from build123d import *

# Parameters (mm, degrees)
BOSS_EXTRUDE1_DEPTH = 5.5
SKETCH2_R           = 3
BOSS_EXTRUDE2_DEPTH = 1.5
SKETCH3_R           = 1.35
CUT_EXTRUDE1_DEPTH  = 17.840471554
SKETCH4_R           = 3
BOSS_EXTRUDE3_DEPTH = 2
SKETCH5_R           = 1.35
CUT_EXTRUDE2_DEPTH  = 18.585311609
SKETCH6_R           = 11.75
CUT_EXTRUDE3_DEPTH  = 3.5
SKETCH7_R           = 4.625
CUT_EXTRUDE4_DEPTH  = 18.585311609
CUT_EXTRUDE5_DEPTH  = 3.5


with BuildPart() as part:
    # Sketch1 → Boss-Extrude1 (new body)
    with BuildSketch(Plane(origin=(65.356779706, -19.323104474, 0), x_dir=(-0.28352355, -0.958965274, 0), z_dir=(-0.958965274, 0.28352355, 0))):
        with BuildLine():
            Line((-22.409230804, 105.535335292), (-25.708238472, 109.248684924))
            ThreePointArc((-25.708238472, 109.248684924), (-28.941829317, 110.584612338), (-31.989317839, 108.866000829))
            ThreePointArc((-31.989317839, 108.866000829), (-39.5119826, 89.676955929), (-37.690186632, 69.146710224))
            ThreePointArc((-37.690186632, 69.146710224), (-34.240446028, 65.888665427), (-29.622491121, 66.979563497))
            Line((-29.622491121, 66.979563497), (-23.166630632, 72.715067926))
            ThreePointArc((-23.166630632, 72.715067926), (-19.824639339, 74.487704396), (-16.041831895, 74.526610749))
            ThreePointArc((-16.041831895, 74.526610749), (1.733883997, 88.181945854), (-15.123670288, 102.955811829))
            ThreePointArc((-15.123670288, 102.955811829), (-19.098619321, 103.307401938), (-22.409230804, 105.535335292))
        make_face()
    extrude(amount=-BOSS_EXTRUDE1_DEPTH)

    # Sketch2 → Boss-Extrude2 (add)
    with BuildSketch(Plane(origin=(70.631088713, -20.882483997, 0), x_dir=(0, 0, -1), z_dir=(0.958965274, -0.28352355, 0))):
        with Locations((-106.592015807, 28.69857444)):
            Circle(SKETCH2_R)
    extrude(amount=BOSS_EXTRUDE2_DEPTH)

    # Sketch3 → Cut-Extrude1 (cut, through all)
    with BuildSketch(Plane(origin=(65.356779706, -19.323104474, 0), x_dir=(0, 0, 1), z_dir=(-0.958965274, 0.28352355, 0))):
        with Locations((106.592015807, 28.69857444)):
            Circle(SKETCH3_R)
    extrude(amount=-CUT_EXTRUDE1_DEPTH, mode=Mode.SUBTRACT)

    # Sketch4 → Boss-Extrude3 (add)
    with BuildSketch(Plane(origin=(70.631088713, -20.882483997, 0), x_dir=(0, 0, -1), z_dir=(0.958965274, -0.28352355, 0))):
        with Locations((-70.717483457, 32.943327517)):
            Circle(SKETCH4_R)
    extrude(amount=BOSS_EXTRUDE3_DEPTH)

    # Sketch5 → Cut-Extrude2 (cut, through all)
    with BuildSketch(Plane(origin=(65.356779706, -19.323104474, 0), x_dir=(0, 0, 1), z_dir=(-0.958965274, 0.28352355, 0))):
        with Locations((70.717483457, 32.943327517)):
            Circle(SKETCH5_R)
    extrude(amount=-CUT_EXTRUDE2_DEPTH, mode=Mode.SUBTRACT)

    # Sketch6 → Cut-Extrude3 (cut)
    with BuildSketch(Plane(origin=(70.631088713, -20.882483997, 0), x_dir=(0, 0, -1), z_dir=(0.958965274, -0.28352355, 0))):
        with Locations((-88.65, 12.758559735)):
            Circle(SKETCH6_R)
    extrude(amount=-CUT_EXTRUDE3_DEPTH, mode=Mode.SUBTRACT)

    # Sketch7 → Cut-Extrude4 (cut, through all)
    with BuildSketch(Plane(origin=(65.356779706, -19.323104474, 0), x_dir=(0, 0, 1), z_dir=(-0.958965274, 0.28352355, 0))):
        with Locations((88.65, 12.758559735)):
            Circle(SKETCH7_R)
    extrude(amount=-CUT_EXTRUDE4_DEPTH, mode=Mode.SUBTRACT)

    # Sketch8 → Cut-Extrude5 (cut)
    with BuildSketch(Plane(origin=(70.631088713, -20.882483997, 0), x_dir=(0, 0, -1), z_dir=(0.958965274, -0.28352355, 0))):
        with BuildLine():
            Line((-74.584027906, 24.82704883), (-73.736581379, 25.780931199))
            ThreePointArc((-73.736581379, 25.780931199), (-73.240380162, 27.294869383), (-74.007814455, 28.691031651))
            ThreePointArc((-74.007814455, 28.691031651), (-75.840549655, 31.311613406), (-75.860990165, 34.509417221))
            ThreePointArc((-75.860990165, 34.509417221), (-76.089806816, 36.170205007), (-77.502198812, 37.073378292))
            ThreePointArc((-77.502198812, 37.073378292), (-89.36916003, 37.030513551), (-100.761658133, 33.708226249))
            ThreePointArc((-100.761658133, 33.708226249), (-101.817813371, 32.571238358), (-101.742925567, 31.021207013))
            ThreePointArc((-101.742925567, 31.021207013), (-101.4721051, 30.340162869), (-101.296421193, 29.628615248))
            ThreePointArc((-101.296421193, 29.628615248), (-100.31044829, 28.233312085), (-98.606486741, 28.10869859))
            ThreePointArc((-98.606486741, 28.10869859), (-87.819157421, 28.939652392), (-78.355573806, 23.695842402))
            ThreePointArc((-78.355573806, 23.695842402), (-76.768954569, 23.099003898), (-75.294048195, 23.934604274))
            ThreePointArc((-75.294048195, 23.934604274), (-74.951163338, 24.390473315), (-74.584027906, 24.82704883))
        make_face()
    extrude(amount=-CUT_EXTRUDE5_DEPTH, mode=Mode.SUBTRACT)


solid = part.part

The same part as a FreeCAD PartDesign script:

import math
import FreeCAD as App
import Part
import Sketcher
Q = App.Units.Quantity

doc = App.newDocument("Part")
body = doc.addObject("PartDesign::Body", "Body")

# Sketch on an angled plane
sketch1 = body.newObject("Sketcher::SketchObject", "Sketch")
sketch1.Placement = App.Placement(App.Vector(65.35678, -19.323104, 0), App.Rotation(App.Vector(-0.28352355, -0.958965274, 0), App.Vector(0, 0, 1), App.Vector(-0.958965274, 0.28352355, 0), "ZXY"))
sketch1.addGeometry([
    Part.LineSegment(App.Vector(-22.4, 105.5, 0), App.Vector(-25.7, 109.2, 0)),  # 0
    Part.ArcOfCircle(Part.Circle(App.Vector(-28.7, 106.6, 0), App.Vector(0, 0, 1), 4), math.radians(42), math.radians(145)),  # 1
    Part.ArcOfCircle(Part.Circle(App.Vector(5, 83.3, 0), App.Vector(0, 0, 1), 45), math.radians(145), math.radians(198)),  # 2
    Part.ArcOfCircle(Part.Circle(App.Vector(-32.9, 70.7, 0), App.Vector(0, 0, 1), 5), math.radians(-162), math.radians(-48)),  # 3
    Part.LineSegment(App.Vector(-29.6, 67, 0), App.Vector(-23.2, 72.7, 0)),  # 4
    Part.ArcOfCircle(Part.Circle(App.Vector(-17.9, 66.7, 0), App.Vector(0, 0, 1), 8), math.radians(77), math.radians(132)),  # 5
    Part.ArcOfCircle(Part.Circle(App.Vector(-12.8, 88.7, 0), App.Vector(0, 0, 1), 14.5), math.radians(-103), math.radians(99)),  # 6
    Part.ArcOfCircle(Part.Circle(App.Vector(-16.4, 110.8, 0), App.Vector(0, 0, 1), 8), math.radians(-138), math.radians(-81)),  # 7
], False)
sketch1.addConstraint([
    Sketcher.Constraint("Tangent", 0, 2, 1, 1),
    Sketcher.Constraint("Tangent", 1, 2, 2, 1),
    Sketcher.Constraint("Tangent", 2, 2, 3, 1),
    Sketcher.Constraint("Tangent", 3, 2, 4, 1),
    Sketcher.Constraint("Tangent", 4, 2, 5, 2),
    Sketcher.Constraint("Tangent", 5, 1, 6, 1),
    Sketcher.Constraint("Tangent", 6, 2, 7, 2),
    Sketcher.Constraint("Tangent", 7, 1, 0, 1),
    Sketcher.Constraint("Equal", 5, 7),
    Sketcher.Constraint("Perpendicular", 0, 4),
    Sketcher.Constraint("Radius", 1, Q("4 mm")),
    Sketcher.Constraint("Radius", 2, Q("45 mm")),
    Sketcher.Constraint("Radius", 3, Q("5 mm")),
    Sketcher.Constraint("Radius", 5, Q("8 mm")),
    Sketcher.Constraint("Radius", 6, Q("14.5 mm")),
    Sketcher.Constraint("DistanceY", -1, 1, 6, 3, Q("88.65 mm")),
    Sketcher.Constraint("DistanceX", 7, 3, 6, 3, Q("3.669999 mm")),
    Sketcher.Constraint("DistanceY", -1, 1, 1, 2, Q("108.866001 mm")),
    Sketcher.Constraint("DistanceY", 3, 3, 0, 2, Q("38.531201 mm")),
    Sketcher.Constraint("DistanceX", 3, 2, 5, 3, Q("11.769199 mm")),
    Sketcher.Constraint("DistanceX", 4, 2, 5, 1, Q("7.124799 mm")),
    Sketcher.Constraint("DistanceX", 6, 3, -1, 1, Q("12.75856 mm")),
])
pad1 = body.newObject("PartDesign::Pad", "Pad")
pad1.Profile = sketch1
pad1.Length = 5.5
pad1.Reversed = True

# Sketch on an angled plane
sketch2 = body.newObject("Sketcher::SketchObject", "Sketch001")
sketch2.Placement = App.Placement(App.Vector(70.631089, -20.882484, 0), App.Rotation(App.Vector(0, 0, -1), App.Vector(0.28352355, 0.958965274, 0), App.Vector(0.958965274, -0.28352355, 0), "ZXY"))
sketch2.addGeometry(Part.Circle(App.Vector(-106.6, 28.7, 0), App.Vector(0, 0, 1), 3), False)
sketch2.addConstraint([
    Sketcher.Constraint("Diameter", 0, Q("6 mm")),
    Sketcher.Constraint("DistanceX", 0, 3, -1, 1, Q("106.592016 mm")),
    Sketcher.Constraint("DistanceY", -1, 1, 0, 3, Q("28.698574 mm")),
])
pad2 = body.newObject("PartDesign::Pad", "Pad001")
pad2.Profile = sketch2
pad2.Length = 1.5

# Sketch on an angled plane
sketch3 = body.newObject("Sketcher::SketchObject", "Sketch002")
sketch3.Placement = App.Placement(App.Vector(65.35678, -19.323104, 0), App.Rotation(App.Vector(0, 0, 1), App.Vector(0.28352355, 0.958965274, 0), App.Vector(-0.958965274, 0.28352355, 0), "ZXY"))
sketch3.addGeometry(Part.Circle(App.Vector(106.6, 28.7, 0), App.Vector(0, 0, 1), 1.4), False)
sketch3.addConstraint([
    Sketcher.Constraint("Diameter", 0, Q("2.7 mm")),
    Sketcher.Constraint("DistanceX", -1, 1, 0, 3, Q("106.592016 mm")),
    Sketcher.Constraint("DistanceY", -1, 1, 0, 3, Q("28.698574 mm")),
])
pocket1 = body.newObject("PartDesign::Pocket", "Pocket")
pocket1.Profile = sketch3
pocket1.Type = "ThroughAll"

# Sketch on an angled plane
sketch4 = body.newObject("Sketcher::SketchObject", "Sketch003")
sketch4.Placement = App.Placement(App.Vector(70.631089, -20.882484, 0), App.Rotation(App.Vector(0, 0, -1), App.Vector(0.28352355, 0.958965274, 0), App.Vector(0.958965274, -0.28352355, 0), "ZXY"))
sketch4.addGeometry(Part.Circle(App.Vector(-70.7, 32.9, 0), App.Vector(0, 0, 1), 3), False)
sketch4.addConstraint([
    Sketcher.Constraint("Diameter", 0, Q("6 mm")),
    Sketcher.Constraint("DistanceX", 0, 3, -1, 1, Q("70.717483 mm")),
    Sketcher.Constraint("DistanceY", -1, 1, 0, 3, Q("32.943328 mm")),
])
pad3 = body.newObject("PartDesign::Pad", "Pad002")
pad3.Profile = sketch4
pad3.Length = 2

# Sketch on an angled plane
sketch5 = body.newObject("Sketcher::SketchObject", "Sketch004")
sketch5.Placement = App.Placement(App.Vector(65.35678, -19.323104, 0), App.Rotation(App.Vector(0, 0, 1), App.Vector(0.28352355, 0.958965274, 0), App.Vector(-0.958965274, 0.28352355, 0), "ZXY"))
sketch5.addGeometry(Part.Circle(App.Vector(70.7, 32.9, 0), App.Vector(0, 0, 1), 1.4), False)
sketch5.addConstraint([
    Sketcher.Constraint("Diameter", 0, Q("2.7 mm")),
    Sketcher.Constraint("DistanceX", -1, 1, 0, 3, Q("70.717483 mm")),
    Sketcher.Constraint("DistanceY", -1, 1, 0, 3, Q("32.943328 mm")),
])
pocket2 = body.newObject("PartDesign::Pocket", "Pocket001")
pocket2.Profile = sketch5
pocket2.Type = "ThroughAll"

# Sketch on an angled plane
sketch6 = body.newObject("Sketcher::SketchObject", "Sketch005")
sketch6.Placement = App.Placement(App.Vector(70.631089, -20.882484, 0), App.Rotation(App.Vector(0, 0, -1), App.Vector(0.28352355, 0.958965274, 0), App.Vector(0.958965274, -0.28352355, 0), "ZXY"))
sketch6.addGeometry(Part.Circle(App.Vector(-89, 13, 0), App.Vector(0, 0, 1), 12), False)
sketch6.addConstraint([
    Sketcher.Constraint("Diameter", 0, Q("23.5 mm")),
    Sketcher.Constraint("DistanceX", 0, 3, -1, 1, Q("88.65 mm")),
    Sketcher.Constraint("DistanceY", -1, 1, 0, 3, Q("12.75856 mm")),
])
pocket3 = body.newObject("PartDesign::Pocket", "Pocket002")
pocket3.Profile = sketch6
pocket3.Length = 3.5

# Sketch on an angled plane
sketch7 = body.newObject("Sketcher::SketchObject", "Sketch006")
sketch7.Placement = App.Placement(App.Vector(65.35678, -19.323104, 0), App.Rotation(App.Vector(0, 0, 1), App.Vector(0.28352355, 0.958965274, 0), App.Vector(-0.958965274, 0.28352355, 0), "ZXY"))
sketch7.addGeometry(Part.Circle(App.Vector(88.7, 12.8, 0), App.Vector(0, 0, 1), 4.6), False)
sketch7.addConstraint([
    Sketcher.Constraint("Diameter", 0, Q("9.25 mm")),
    Sketcher.Constraint("DistanceX", -1, 1, 0, 3, Q("88.65 mm")),
    Sketcher.Constraint("DistanceY", -1, 1, 0, 3, Q("12.75856 mm")),
])
pocket4 = body.newObject("PartDesign::Pocket", "Pocket003")
pocket4.Profile = sketch7
pocket4.Type = "ThroughAll"

# Sketch on an angled plane
sketch8 = body.newObject("Sketcher::SketchObject", "Sketch007")
sketch8.Placement = App.Placement(App.Vector(70.631089, -20.882484, 0), App.Rotation(App.Vector(0, 0, -1), App.Vector(0.28352355, 0.958965274, 0), App.Vector(0.958965274, -0.28352355, 0), "ZXY"))
sketch8.addGeometry([
    Part.LineSegment(App.Vector(-74.6, 24.8, 0), App.Vector(-73.7, 25.8, 0)),  # 0
    Part.ArcOfCircle(Part.Circle(App.Vector(-75.2, 27.1, 0), App.Vector(0, 0, 1), 2), math.radians(-42), math.radians(52)),  # 1
    Part.ArcOfCircle(Part.Circle(App.Vector(-70.7, 32.9, 0), App.Vector(0, 0, 1), 5.4), math.radians(163), math.radians(232)),  # 2
    Part.ArcOfCircle(Part.Circle(App.Vector(-77.8, 35.1, 0), App.Vector(0, 0, 1), 2), math.radians(-17), math.radians(82)),  # 3
    Part.ArcOfCircle(Part.Circle(App.Vector(-83.3, -5, 0), App.Vector(0, 0, 1), 42.5), math.radians(82), math.radians(114)),  # 4
    Part.ArcOfCircle(Part.Circle(App.Vector(-99.9, 31.9, 0), App.Vector(0, 0, 1), 2), math.radians(114), math.radians(206)),  # 5
    Part.ArcOfCircle(Part.Circle(App.Vector(-106.6, 28.7, 0), App.Vector(0, 0, 1), 5.4), math.radians(9.96), math.radians(25.59)),  # 6
    Part.ArcOfCircle(Part.Circle(App.Vector(-99.3, 30, 0), App.Vector(0, 0, 1), 2), math.radians(-170), math.radians(-69)),  # 7
    Part.ArcOfCircle(Part.Circle(App.Vector(-91.8, 10.5, 0), App.Vector(0, 0, 1), 18.8), math.radians(44), math.radians(111)),  # 8
    Part.ArcOfCircle(Part.Circle(App.Vector(-76.9, 25.1, 0), App.Vector(0, 0, 1), 2), math.radians(-136), math.radians(-35)),  # 9
    Part.ArcOfCircle(Part.Circle(App.Vector(-66.7, 17.9, 0), App.Vector(0, 0, 1), 10.5), math.radians(138.38), math.radians(144.61)),  # 10
], False)
sketch8.addConstraint([
    Sketcher.Constraint("Tangent", 0, 2, 1, 1),
    Sketcher.Constraint("Tangent", 1, 2, 2, 2),
    Sketcher.Constraint("Tangent", 2, 1, 3, 1),
    Sketcher.Constraint("Tangent", 3, 2, 4, 1),
    Sketcher.Constraint("Tangent", 4, 2, 5, 1),
    Sketcher.Constraint("Tangent", 5, 2, 6, 2),
    Sketcher.Constraint("Tangent", 6, 1, 7, 1),
    Sketcher.Constraint("Tangent", 7, 2, 8, 2),
    Sketcher.Constraint("Tangent", 8, 1, 9, 1),
    Sketcher.Constraint("Tangent", 9, 2, 10, 2),
    Sketcher.Constraint("Tangent", 10, 1, 0, 1),
    Sketcher.Constraint("Equal", 1, 3),
    Sketcher.Constraint("Equal", 3, 5),
    Sketcher.Constraint("Equal", 2, 6),
    Sketcher.Constraint("Equal", 5, 7),
    Sketcher.Constraint("Equal", 7, 9),
    Sketcher.Constraint("Radius", 1, Q("2 mm")),
    Sketcher.Constraint("Radius", 4, Q("42.5 mm")),
    Sketcher.Constraint("Radius", 10, Q("10.5 mm")),
    Sketcher.Constraint("Radius", 8, Q("18.827561 mm")),
    Sketcher.Constraint("Radius", 2, Q("5.376644 mm")),
    Sketcher.Constraint("DistanceX", 3, 2, -1, 1, Q("77.502199 mm")),
    Sketcher.Constraint("DistanceY", -1, 1, 7, 2, Q("28.108699 mm")),
    Sketcher.Constraint("DistanceX", 4, 3, 3, 3, Q("5.509401 mm")),
    Sketcher.Constraint("DistanceX", 7, 3, 3, 3, Q("21.552302 mm")),
    Sketcher.Constraint("DistanceY", 7, 3, 3, 3, Q("5.117399 mm")),
    Sketcher.Constraint("DistanceY", 0, 2, 1, 2, Q("2.9101 mm")),
    Sketcher.Constraint("DistanceX", 9, 2, 1, 3, Q("0.062299 mm")),
    Sketcher.Constraint("DistanceY", 10, 1, 9, 3, Q("0.265901 mm")),
    Sketcher.Constraint("DistanceX", 1, 3, -1, 1, Q("75.231749 mm")),
    Sketcher.Constraint("DistanceY", -1, 1, 3, 3, Q("35.09197 mm")),
    Sketcher.Constraint("DistanceY", -1, 1, 5, 3, Q("31.885178 mm")),
])
pocket5 = body.newObject("PartDesign::Pocket", "Pocket004")
pocket5.Profile = sketch8
pocket5.Length = 3.5

doc.recompute()
